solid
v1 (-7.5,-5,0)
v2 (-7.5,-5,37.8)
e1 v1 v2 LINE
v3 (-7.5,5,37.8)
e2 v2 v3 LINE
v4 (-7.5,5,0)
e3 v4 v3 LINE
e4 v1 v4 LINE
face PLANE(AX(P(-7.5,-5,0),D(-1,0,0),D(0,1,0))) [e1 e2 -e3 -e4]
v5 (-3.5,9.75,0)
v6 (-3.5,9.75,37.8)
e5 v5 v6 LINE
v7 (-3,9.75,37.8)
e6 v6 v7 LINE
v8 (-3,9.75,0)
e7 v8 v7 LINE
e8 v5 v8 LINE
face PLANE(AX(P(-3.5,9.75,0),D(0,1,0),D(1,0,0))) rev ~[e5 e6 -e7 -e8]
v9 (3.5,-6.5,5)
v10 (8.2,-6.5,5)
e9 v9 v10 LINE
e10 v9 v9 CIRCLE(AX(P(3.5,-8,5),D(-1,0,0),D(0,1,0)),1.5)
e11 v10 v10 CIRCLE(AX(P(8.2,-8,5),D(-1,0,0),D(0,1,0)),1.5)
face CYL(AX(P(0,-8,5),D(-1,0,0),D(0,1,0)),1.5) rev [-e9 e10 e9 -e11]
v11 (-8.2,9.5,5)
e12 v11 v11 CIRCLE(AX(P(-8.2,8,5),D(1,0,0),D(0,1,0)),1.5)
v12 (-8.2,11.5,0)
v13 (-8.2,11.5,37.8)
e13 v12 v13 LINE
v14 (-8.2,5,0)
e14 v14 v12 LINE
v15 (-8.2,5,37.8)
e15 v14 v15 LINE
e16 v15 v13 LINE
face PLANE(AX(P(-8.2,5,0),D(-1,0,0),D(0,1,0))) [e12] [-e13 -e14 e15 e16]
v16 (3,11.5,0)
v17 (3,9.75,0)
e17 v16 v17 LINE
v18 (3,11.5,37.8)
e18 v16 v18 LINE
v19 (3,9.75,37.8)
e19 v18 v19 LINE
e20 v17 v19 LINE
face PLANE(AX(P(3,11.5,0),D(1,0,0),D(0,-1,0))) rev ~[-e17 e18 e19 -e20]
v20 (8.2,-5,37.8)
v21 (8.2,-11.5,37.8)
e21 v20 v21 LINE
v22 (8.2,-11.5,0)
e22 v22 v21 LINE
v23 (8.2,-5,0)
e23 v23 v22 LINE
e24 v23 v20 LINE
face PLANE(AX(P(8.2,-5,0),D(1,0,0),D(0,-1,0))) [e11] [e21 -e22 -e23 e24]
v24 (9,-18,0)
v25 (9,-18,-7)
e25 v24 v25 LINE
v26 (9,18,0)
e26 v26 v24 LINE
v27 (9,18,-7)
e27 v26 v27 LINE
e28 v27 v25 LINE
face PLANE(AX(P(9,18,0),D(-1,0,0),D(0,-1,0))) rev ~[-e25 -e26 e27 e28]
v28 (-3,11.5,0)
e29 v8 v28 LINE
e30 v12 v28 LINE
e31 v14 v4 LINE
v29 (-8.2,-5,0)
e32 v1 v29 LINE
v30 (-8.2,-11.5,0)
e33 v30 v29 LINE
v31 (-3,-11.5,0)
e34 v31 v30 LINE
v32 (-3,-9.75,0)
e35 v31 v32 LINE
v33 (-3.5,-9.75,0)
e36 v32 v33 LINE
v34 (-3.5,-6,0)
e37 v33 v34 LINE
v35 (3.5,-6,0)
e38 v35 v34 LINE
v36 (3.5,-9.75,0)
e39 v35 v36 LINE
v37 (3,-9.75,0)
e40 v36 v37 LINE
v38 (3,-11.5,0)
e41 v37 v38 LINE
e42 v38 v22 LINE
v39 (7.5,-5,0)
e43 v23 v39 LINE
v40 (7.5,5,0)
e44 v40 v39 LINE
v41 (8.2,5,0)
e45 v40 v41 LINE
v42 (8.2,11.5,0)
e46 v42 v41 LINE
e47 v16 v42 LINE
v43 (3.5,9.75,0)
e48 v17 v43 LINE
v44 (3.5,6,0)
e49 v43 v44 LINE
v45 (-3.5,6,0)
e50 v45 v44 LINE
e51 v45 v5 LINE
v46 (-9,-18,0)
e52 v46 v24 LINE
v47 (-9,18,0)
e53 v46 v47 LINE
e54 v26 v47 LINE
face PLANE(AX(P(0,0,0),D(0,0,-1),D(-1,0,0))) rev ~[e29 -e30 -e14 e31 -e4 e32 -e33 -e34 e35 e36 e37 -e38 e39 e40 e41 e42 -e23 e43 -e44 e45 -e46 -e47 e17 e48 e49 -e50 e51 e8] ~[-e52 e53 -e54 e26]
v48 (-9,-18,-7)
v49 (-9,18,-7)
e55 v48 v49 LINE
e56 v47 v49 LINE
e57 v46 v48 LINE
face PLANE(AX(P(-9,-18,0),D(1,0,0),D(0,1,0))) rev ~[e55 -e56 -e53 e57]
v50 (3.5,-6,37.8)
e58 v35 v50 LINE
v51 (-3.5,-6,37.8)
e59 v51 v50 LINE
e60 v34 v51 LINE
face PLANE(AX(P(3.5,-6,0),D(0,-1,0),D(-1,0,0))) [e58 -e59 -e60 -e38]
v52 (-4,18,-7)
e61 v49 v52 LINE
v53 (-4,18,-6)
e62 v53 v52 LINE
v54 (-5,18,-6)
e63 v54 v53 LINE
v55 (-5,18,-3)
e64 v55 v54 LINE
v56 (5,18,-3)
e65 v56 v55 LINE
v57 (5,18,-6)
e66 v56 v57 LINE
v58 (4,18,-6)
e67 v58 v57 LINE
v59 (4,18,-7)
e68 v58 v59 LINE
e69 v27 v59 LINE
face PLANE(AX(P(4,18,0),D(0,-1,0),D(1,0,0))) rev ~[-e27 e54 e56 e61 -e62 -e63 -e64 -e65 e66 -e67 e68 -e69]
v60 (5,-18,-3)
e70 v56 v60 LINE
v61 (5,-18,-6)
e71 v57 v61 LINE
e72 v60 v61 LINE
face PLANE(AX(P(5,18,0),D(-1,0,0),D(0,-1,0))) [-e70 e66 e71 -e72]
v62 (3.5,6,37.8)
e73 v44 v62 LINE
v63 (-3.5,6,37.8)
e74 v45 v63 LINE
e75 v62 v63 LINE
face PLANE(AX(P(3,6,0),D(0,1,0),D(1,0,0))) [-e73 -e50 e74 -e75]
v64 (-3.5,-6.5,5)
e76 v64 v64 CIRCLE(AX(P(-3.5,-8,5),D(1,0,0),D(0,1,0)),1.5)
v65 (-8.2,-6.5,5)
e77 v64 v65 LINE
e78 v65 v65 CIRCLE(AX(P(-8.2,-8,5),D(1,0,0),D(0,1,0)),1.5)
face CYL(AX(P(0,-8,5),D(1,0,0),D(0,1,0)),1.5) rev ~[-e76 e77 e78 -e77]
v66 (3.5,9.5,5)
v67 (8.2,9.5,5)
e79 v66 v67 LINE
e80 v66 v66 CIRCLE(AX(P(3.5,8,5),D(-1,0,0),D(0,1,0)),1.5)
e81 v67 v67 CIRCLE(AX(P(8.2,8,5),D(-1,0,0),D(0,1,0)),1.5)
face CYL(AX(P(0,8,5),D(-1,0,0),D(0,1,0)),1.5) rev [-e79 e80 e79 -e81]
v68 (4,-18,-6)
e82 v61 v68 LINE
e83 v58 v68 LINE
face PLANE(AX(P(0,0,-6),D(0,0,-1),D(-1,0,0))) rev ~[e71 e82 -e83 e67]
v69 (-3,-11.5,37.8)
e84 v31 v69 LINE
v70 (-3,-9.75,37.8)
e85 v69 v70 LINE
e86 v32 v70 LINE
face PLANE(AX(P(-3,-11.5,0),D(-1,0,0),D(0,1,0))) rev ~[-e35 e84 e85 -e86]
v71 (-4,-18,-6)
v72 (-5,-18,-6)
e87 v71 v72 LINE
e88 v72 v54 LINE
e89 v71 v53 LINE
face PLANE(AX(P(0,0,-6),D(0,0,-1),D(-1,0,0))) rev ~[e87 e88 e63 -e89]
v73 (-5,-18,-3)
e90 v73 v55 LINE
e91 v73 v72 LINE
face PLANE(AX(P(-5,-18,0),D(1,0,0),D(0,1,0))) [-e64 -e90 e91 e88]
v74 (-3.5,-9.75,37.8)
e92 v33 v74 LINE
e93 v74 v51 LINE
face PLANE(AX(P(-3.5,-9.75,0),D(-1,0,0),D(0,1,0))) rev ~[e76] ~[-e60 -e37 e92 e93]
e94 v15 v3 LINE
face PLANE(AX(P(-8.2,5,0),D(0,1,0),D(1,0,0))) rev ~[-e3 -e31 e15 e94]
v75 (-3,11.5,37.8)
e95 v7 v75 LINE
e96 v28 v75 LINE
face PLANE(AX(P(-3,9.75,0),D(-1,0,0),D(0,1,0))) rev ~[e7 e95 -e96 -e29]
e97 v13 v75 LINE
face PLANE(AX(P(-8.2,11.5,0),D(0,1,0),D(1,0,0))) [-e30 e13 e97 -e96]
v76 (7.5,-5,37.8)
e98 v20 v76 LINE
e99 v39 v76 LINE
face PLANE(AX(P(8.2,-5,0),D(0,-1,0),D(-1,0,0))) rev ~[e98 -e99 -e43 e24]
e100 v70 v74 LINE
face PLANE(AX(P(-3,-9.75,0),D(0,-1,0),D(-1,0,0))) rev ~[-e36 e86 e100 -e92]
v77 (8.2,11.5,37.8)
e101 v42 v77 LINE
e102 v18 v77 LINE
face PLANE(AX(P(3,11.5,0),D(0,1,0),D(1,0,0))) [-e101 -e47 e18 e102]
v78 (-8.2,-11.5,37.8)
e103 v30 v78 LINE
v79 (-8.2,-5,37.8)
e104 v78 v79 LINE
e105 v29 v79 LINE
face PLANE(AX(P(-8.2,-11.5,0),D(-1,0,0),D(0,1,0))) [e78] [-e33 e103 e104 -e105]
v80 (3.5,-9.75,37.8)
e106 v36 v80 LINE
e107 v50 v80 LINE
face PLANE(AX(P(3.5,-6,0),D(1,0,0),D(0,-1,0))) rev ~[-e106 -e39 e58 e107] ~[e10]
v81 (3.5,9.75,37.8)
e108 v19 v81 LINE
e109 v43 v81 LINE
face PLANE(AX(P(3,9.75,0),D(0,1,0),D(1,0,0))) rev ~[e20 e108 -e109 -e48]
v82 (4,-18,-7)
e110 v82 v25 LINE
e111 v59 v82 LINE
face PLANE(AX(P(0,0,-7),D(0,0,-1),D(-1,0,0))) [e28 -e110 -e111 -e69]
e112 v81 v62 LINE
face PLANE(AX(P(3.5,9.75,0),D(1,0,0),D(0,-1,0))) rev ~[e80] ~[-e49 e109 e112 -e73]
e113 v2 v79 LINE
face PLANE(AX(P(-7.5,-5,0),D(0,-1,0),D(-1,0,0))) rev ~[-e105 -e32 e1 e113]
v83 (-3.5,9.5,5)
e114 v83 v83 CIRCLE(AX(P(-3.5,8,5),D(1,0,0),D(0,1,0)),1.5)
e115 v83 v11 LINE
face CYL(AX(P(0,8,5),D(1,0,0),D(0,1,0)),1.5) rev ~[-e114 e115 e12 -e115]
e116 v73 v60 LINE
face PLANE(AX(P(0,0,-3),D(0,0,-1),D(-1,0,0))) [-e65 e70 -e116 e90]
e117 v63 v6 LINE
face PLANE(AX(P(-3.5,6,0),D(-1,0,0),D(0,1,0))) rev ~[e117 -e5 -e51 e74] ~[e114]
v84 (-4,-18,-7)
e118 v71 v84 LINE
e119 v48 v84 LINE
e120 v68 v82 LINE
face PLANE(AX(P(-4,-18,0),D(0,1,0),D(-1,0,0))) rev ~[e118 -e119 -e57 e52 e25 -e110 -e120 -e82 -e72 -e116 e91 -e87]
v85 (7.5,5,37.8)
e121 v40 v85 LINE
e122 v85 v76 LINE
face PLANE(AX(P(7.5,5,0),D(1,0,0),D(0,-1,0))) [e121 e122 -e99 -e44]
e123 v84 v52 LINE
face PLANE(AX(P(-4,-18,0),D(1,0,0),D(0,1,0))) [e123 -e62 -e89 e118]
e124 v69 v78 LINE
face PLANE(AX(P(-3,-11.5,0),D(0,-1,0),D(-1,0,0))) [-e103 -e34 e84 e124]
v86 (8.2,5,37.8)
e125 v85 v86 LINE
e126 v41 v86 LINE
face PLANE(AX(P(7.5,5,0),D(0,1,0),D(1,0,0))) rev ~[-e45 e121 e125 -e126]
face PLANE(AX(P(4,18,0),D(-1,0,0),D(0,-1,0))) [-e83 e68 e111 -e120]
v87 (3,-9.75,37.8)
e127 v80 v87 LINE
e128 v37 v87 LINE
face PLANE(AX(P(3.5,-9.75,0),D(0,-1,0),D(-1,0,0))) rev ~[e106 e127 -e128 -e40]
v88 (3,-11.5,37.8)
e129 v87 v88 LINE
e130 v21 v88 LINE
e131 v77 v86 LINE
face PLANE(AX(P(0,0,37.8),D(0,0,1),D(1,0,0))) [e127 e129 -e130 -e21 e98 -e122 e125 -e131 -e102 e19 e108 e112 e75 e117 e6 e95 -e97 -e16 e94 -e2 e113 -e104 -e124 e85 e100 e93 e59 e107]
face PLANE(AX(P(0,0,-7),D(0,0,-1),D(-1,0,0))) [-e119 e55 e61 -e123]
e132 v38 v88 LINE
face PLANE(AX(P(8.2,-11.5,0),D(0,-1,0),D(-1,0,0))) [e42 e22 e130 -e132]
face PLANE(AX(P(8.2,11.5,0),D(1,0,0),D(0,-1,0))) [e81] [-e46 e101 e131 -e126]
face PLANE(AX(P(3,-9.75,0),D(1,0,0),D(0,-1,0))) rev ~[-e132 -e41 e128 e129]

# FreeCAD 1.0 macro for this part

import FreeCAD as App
import Part
import Sketcher
Q = App.Units.Quantity

doc = App.newDocument("Part")
body = doc.addObject("PartDesign::Body", "Body")

# Sketch on XY plane
sketch1 = doc.addObject("Sketcher::SketchObject", "Sketch")
body.addObject(sketch1)
sketch1.AttachmentSupport = (doc.XY_Plane, [""])
sketch1.MapMode = "FlatFace"
sketch1.addGeometry([
    Part.LineSegment(App.Vector(3, -11.5, 0), App.Vector(8.2, -11.5, 0)),  # 0
    Part.LineSegment(App.Vector(8.2, -11.5, 0), App.Vector(8.2, -5, 0)),  # 1
    Part.LineSegment(App.Vector(8.2, -5, 0), App.Vector(7.5, -5, 0)),  # 2
    Part.LineSegment(App.Vector(7.5, -5, 0), App.Vector(7.5, 5, 0)),  # 3
    Part.LineSegment(App.Vector(7.5, 5, 0), App.Vector(8.2, 5, 0)),  # 4
    Part.LineSegment(App.Vector(8.2, 5, 0), App.Vector(8.2, 11.5, 0)),  # 5
    Part.LineSegment(App.Vector(8.2, 11.5, 0), App.Vector(3, 11.5, 0)),  # 6
    Part.LineSegment(App.Vector(3, 11.5, 0), App.Vector(3, 9.75, 0)),  # 7
    Part.LineSegment(App.Vector(3, 9.75, 0), App.Vector(3.5, 9.75, 0)),  # 8
    Part.LineSegment(App.Vector(3.5, 9.75, 0), App.Vector(3.5, 6, 0)),  # 9
    Part.LineSegment(App.Vector(3.5, 6, 0), App.Vector(-3.5, 6, 0)),  # 10
    Part.LineSegment(App.Vector(-3.5, 6, 0), App.Vector(-3.5, 9.75, 0)),  # 11
    Part.LineSegment(App.Vector(-3.5, 9.75, 0), App.Vector(-3, 9.75, 0)),  # 12
    Part.LineSegment(App.Vector(-3, 9.75, 0), App.Vector(-3, 11.5, 0)),  # 13
    Part.LineSegment(App.Vector(-3, 11.5, 0), App.Vector(-8.2, 11.5, 0)),  # 14
    Part.LineSegment(App.Vector(-8.2, 11.5, 0), App.Vector(-8.2, 5, 0)),  # 15
    Part.LineSegment(App.Vector(-8.2, 5, 0), App.Vector(-7.5, 5, 0)),  # 16
    Part.LineSegment(App.Vector(-7.5, 5, 0), App.Vector(-7.5, -5, 0)),  # 17
    Part.LineSegment(App.Vector(-7.5, -5, 0), App.Vector(-8.2, -5, 0)),  # 18
    Part.LineSegment(App.Vector(-8.2, -5, 0), App.Vector(-8.2, -11.5, 0)),  # 19
    Part.LineSegment(App.Vector(-8.2, -11.5, 0), App.Vector(-3, -11.5, 0)),  # 20
    Part.LineSegment(App.Vector(-3, -11.5, 0), App.Vector(-3, -9.75, 0)),  # 21
    Part.LineSegment(App.Vector(-3, -9.75, 0), App.Vector(-3.5, -9.75, 0)),  # 22
    Part.LineSegment(App.Vector(-3.5, -9.75, 0), App.Vector(-3.5, -6, 0)),  # 23
    Part.LineSegment(App.Vector(-3.5, -6, 0), App.Vector(3.5, -6, 0)),  # 24
    Part.LineSegment(App.Vector(3.5, -6, 0), App.Vector(3.5, -9.75, 0)),  # 25
    Part.LineSegment(App.Vector(3.5, -9.75, 0), App.Vector(3, -9.75, 0)),  # 26
    Part.LineSegment(App.Vector(3, -9.75, 0), App.Vector(3, -11.5, 0)),  # 27
], False)
sketch1.addConstraint([
    Sketcher.Constraint("Coincident", 0, 2, 1, 1),
    Sketcher.Constraint("Coincident", 1, 2, 2, 1),
    Sketcher.Constraint("Coincident", 2, 2, 3, 1),
    Sketcher.Constraint("Coincident", 3, 2, 4, 1),
    Sketcher.Constraint("Coincident", 4, 2, 5, 1),
    Sketcher.Constraint("Coincident", 5, 2, 6, 1),
    Sketcher.Constraint("Coincident", 6, 2, 7, 1),
    Sketcher.Constraint("Coincident", 7, 2, 8, 1),
    Sketcher.Constraint("Coincident", 8, 2, 9, 1),
    Sketcher.Constraint("Coincident", 9, 2, 10, 1),
    Sketcher.Constraint("Coincident", 10, 2, 11, 1),
    Sketcher.Constraint("Coincident", 11, 2, 12, 1),
    Sketcher.Constraint("Coincident", 12, 2, 13, 1),
    Sketcher.Constraint("Coincident", 13, 2, 14, 1),
    Sketcher.Constraint("Coincident", 14, 2, 15, 1),
    Sketcher.Constraint("Coincident", 15, 2, 16, 1),
    Sketcher.Constraint("Coincident", 16, 2, 17, 1),
    Sketcher.Constraint("Coincident", 17, 2, 18, 1),
    Sketcher.Constraint("Coincident", 18, 2, 19, 1),
    Sketcher.Constraint("Coincident", 19, 2, 20, 1),
    Sketcher.Constraint("Coincident", 20, 2, 21, 1),
    Sketcher.Constraint("Coincident", 21, 2, 22, 1),
    Sketcher.Constraint("Coincident", 22, 2, 23, 1),
    Sketcher.Constraint("Coincident", 23, 2, 24, 1),
    Sketcher.Constraint("Coincident", 24, 2, 25, 1),
    Sketcher.Constraint("Coincident", 25, 2, 26, 1),
    Sketcher.Constraint("Coincident", 26, 2, 27, 1),
    Sketcher.Constraint("Coincident", 27, 2, 0, 1),
    Sketcher.Constraint("Horizontal", 0),
    Sketcher.Constraint("Vertical", 1),
    Sketcher.Constraint("Horizontal", 2),
    Sketcher.Constraint("Vertical", 3),
    Sketcher.Constraint("Horizontal", 4),
    Sketcher.Constraint("Vertical", 5),
    Sketcher.Constraint("Horizontal", 6),
    Sketcher.Constraint("Vertical", 7),
    Sketcher.Constraint("Horizontal", 8),
    Sketcher.Constraint("Vertical", 9),
    Sketcher.Constraint("Horizontal", 10),
    Sketcher.Constraint("Vertical", 11),
    Sketcher.Constraint("Horizontal", 12),
    Sketcher.Constraint("Vertical", 13),
    Sketcher.Constraint("Horizontal", 14),
    Sketcher.Constraint("Vertical", 15),
    Sketcher.Constraint("Horizontal", 16),
    Sketcher.Constraint("Vertical", 17),
    Sketcher.Constraint("Horizontal", 18),
    Sketcher.Constraint("Vertical", 19),
    Sketcher.Constraint("Horizontal", 20),
    Sketcher.Constraint("Vertical", 21),
    Sketcher.Constraint("Horizontal", 22),
    Sketcher.Constraint("Vertical", 23),
    Sketcher.Constraint("Horizontal", 24),
    Sketcher.Constraint("Vertical", 25),
    Sketcher.Constraint("Horizontal", 26),
    Sketcher.Constraint("Vertical", 27),
    Sketcher.Constraint("Symmetric", 0, 2, 14, 2, -1, 1),
    Sketcher.Constraint("Symmetric", 2, 2, 16, 2, -1, 1),
    Sketcher.Constraint("Symmetric", 4, 2, 18, 2, -1, 1),
    Sketcher.Constraint("Symmetric", 6, 2, 20, 2, -1, 1),
    Sketcher.Constraint("Symmetric", 8, 2, 22, 2, -1, 1),
    Sketcher.Constraint("Symmetric", 10, 2, 24, 2, -1, 1),
    Sketcher.Constraint("Symmetric", 12, 2, 26, 2, -1, 1),
    Sketcher.Constraint("Symmetric", 8, 2, 11, 2, -2),
    Sketcher.Constraint("Symmetric", 6, 2, 13, 2, -2),
    Sketcher.Constraint("Symmetric", 4, 2, 15, 2, -2),
    Sketcher.Constraint("DistanceX", 10, 2, 10, 1, Q("7 mm")),
    Sketcher.Constraint("DistanceY", 3, 1, 3, 2, Q("10 mm")),
    Sketcher.Constraint("DistanceY", -1, 1, 9, 2, Q("6 mm")),
    Sketcher.Constraint("DistanceY", 0, 2, 5, 2, Q("23 mm")),
    Sketcher.Constraint("DistanceX", 12, 2, 7, 2, Q("6 mm")),
    Sketcher.Constraint("DistanceX", 17, 2, 2, 2, Q("15 mm")),
    Sketcher.Constraint("DistanceX", 19, 2, 0, 2, Q("16.4 mm")),
    Sketcher.Constraint("DistanceY", 7, 2, 7, 1, Q("1.75 mm")),
])
pad1 = doc.addObject("PartDesign::Pad", "Pad")
body.addObject(pad1)
pad1.Profile = sketch1
pad1.Length = 37.8

# Sketch on YZ plane
sketch2 = doc.addObject("Sketcher::SketchObject", "Sketch001")
body.addObject(sketch2)
sketch2.AttachmentSupport = (doc.YZ_Plane, [""])
sketch2.MapMode = "FlatFace"
sketch2.addGeometry([
    Part.Circle(App.Vector(-8, 5, 0), App.Vector(0, 0, 1), 1.5),
    Part.Circle(App.Vector(8, 5, 0), App.Vector(0, 0, 1), 1.5),
], False)
sketch2.addConstraint([
    Sketcher.Constraint("Equal", 0, 1),
    Sketcher.Constraint("Symmetric", 0, 3, 1, 3, -2),
    Sketcher.Constraint("Diameter", 0, Q("3 mm")),
    Sketcher.Constraint("DistanceX", 0, 3, -1, 1, Q("8 mm")),
    Sketcher.Constraint("DistanceY", -1, 1, 0, 3, Q("5 mm")),
])
pocket1 = doc.addObject("PartDesign::Pocket", "Pocket")
body.addObject(pocket1)
pocket1.Profile = sketch2
pocket1.Type = "ThroughAll"
pocket1.Midplane = True

# Sketch on XY plane
sketch3 = doc.addObject("Sketcher::SketchObject", "Sketch002")
body.addObject(sketch3)
sketch3.AttachmentSupport = (doc.XY_Plane, [""])
sketch3.MapMode = "FlatFace"
sketch3.addGeometry([
    Part.LineSegment(App.Vector(-4, -18, 0), App.Vector(-9, -18, 0)),  # 0
    Part.LineSegment(App.Vector(-9, -18, 0), App.Vector(-9, 18, 0)),  # 1
    Part.LineSegment(App.Vector(-9, 18, 0), App.Vector(-4, 18, 0)),  # 2
    Part.LineSegment(App.Vector(-4, 18, 0), App.Vector(-4, -18, 0)),  # 3
    Part.LineSegment(App.Vector(4, -18, 0), App.Vector(4, 18, 0)),  # 4
    Part.LineSegment(App.Vector(4, 18, 0), App.Vector(9, 18, 0)),  # 5
    Part.LineSegment(App.Vector(9, 18, 0), App.Vector(9, -18, 0)),  # 6
    Part.LineSegment(App.Vector(9, -18, 0), App.Vector(4, -18, 0)),  # 7
], False)
sketch3.addConstraint([
    Sketcher.Constraint("Coincident", 0, 2, 1, 1),
    Sketcher.Constraint("Coincident", 1, 2, 2, 1),
    Sketcher.Constraint("Coincident", 2, 2, 3, 1),
    Sketcher.Constraint("Coincident", 3, 2, 0, 1),
    Sketcher.Constraint("Coincident", 4, 2, 5, 1),
    Sketcher.Constraint("Coincident", 5, 2, 6, 1),
    Sketcher.Constraint("Coincident", 6, 2, 7, 1),
    Sketcher.Constraint("Coincident", 7, 2, 4, 1),
    Sketcher.Constraint("Horizontal", 0),
    Sketcher.Constraint("Vertical", 1),
    Sketcher.Constraint("Horizontal", 2),
    Sketcher.Constraint("Vertical", 3),
    Sketcher.Constraint("Vertical", 4),
    Sketcher.Constraint("Horizontal", 5),
    Sketcher.Constraint("Vertical", 6),
    Sketcher.Constraint("Horizontal", 7),
    Sketcher.Constraint("Symmetric", 3, 2, 4, 2, -1, 1),
    Sketcher.Constraint("Symmetric", 1, 2, 6, 2, -1, 1),
    Sketcher.Constraint("Horizontal", 2, 2, 4, 2),
    Sketcher.Constraint("DistanceY", 1, 1, 1, 2, Q("36 mm")),
    Sketcher.Constraint("DistanceX", 2, 2, 4, 2, Q("8 mm")),
    Sketcher.Constraint("DistanceX", 1, 2, 5, 2, Q("18 mm")),
])
pad2 = doc.addObject("PartDesign::Pad", "Pad001")
body.addObject(pad2)
pad2.Profile = sketch3
pad2.Length = 7
pad2.Reversed = True

# Sketch on XY plane
sketch4 = doc.addObject("Sketcher::SketchObject", "Sketch003")
body.addObject(sketch4)
sketch4.AttachmentSupport = (doc.XY_Plane, [""])
sketch4.MapMode = "FlatFace"
sketch4.addGeometry([
    Part.LineSegment(App.Vector(-5, -18, 0), App.Vector(-5, 18, 0)),  # 0
    Part.LineSegment(App.Vector(-5, 18, 0), App.Vector(-4, 18, 0)),  # 1
    Part.LineSegment(App.Vector(-4, 18, 0), App.Vector(-4, -18, 0)),  # 2
    Part.LineSegment(App.Vector(-4, -18, 0), App.Vector(-5, -18, 0)),  # 3
    Part.LineSegment(App.Vector(4, -18, 0), App.Vector(4, 18, 0)),  # 4
    Part.LineSegment(App.Vector(4, 18, 0), App.Vector(5, 18, 0)),  # 5
    Part.LineSegment(App.Vector(5, 18, 0), App.Vector(5, -18, 0)),  # 6
    Part.LineSegment(App.Vector(5, -18, 0), App.Vector(4, -18, 0)),  # 7
], False)
sketch4.addConstraint([
    Sketcher.Constraint("Coincident", 0, 2, 1, 1),
    Sketcher.Constraint("Coincident", 1, 2, 2, 1),
    Sketcher.Constraint("Coincident", 2, 2, 3, 1),
    Sketcher.Constraint("Coincident", 3, 2, 0, 1),
    Sketcher.Constraint("Coincident", 4, 2, 5, 1),
    Sketcher.Constraint("Coincident", 5, 2, 6, 1),
    Sketcher.Constraint("Coincident", 6, 2, 7, 1),
    Sketcher.Constraint("Coincident", 7, 2, 4, 1),
    Sketcher.Constraint("Vertical", 0),
    Sketcher.Constraint("Horizontal", 1),
    Sketcher.Constraint("Vertical", 2),
    Sketcher.Constraint("Horizontal", 3),
    Sketcher.Constraint("Vertical", 4),
    Sketcher.Constraint("Horizontal", 5),
    Sketcher.Constraint("Vertical", 6),
    Sketcher.Constraint("Horizontal", 7),
    Sketcher.Constraint("Symmetric", 2, 2, 4, 2, -1, 1),
    Sketcher.Constraint("Symmetric", 0, 2, 6, 2, -1, 1),
    Sketcher.Constraint("Horizontal", 1, 2, 4, 2),
    Sketcher.Constraint("DistanceY", 0, 1, 0, 2, Q("36 mm")),
    Sketcher.Constraint("DistanceX", 1, 2, 4, 2, Q("8 mm")),
    Sketcher.Constraint("DistanceX", 0, 2, 5, 2, Q("10 mm")),
])
pocket2 = doc.addObject("PartDesign::Pocket", "Pocket001")
body.addObject(pocket2)
pocket2.Profile = sketch4
pocket2.Length = 6

# Sketch on XY plane
sketch5 = doc.addObject("Sketcher::SketchObject", "Sketch004")
body.addObject(sketch5)
sketch5.AttachmentSupport = (doc.XY_Plane, [""])
sketch5.MapMode = "FlatFace"
sketch5.addGeometry([
    Part.LineSegment(App.Vector(-5, -18, 0), App.Vector(-5, 18, 0)),
    Part.LineSegment(App.Vector(-5, 18, 0), App.Vector(5, 18, 0)),
    Part.LineSegment(App.Vector(5, 18, 0), App.Vector(5, -18, 0)),
    Part.LineSegment(App.Vector(5, -18, 0), App.Vector(-5, -18, 0)),
], False)
sketch5.addConstraint([
    Sketcher.Constraint("Coincident", 0, 2, 1, 1),
    Sketcher.Constraint("Coincident", 1, 2, 2, 1),
    Sketcher.Constraint("Coincident", 2, 2, 3, 1),
    Sketcher.Constraint("Coincident", 3, 2, 0, 1),
    Sketcher.Constraint("Vertical", 0),
    Sketcher.Constraint("Horizontal", 1),
    Sketcher.Constraint("Vertical", 2),
    Sketcher.Constraint("Horizontal", 3),
    Sketcher.Constraint("Symmetric", 0, 2, 2, 2, -1, 1),
    Sketcher.Constraint("DistanceX", 1, 1, 1, 2, Q("10 mm")),
    Sketcher.Constraint("DistanceY", 0, 1, 0, 2, Q("36 mm")),
])
pad3 = doc.addObject("PartDesign::Pad", "Pad002")
body.addObject(pad3)
pad3.Profile = sketch5
pad3.Length = 3
pad3.Reversed = True

doc.recompute()
